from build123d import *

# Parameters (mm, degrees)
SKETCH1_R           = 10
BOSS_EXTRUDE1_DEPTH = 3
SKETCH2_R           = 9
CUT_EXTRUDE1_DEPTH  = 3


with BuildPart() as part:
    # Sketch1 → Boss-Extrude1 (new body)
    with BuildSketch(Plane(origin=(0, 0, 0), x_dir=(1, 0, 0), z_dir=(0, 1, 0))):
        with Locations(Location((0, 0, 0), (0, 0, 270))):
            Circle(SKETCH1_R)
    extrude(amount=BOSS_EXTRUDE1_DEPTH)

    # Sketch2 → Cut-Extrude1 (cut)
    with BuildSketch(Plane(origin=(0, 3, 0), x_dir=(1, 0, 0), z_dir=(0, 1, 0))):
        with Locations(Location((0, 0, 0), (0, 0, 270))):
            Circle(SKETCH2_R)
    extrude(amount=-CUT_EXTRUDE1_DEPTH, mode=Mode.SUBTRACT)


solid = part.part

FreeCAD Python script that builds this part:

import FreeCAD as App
import Part
import Sketcher
from FreeCAD import Vector
Q = App.Units.Quantity

doc = App.newDocument("Part")
body = doc.addObject("PartDesign::Body", "Body")

# Sketch on XZ plane
sketch1 = body.newObject("Sketcher::SketchObject", "Sketch")
sketch1.AttachmentSupport = (doc.getObject("XZ_Plane"), [""])
sketch1.MapMode = "FlatFace"
sketch1.addGeometry(Part.Circle(Vector(0, 0, 0), Vector(0, 0, 1), 10), False)
sketch1.addConstraint(Sketcher.Constraint("Coincident", 0, 3, -1, 1))
sketch1.addConstraint(Sketcher.Constraint("Diameter", 0, Q("20 mm")))
pad1 = body.newObject("PartDesign::Pad", "Pad")
pad1.Profile = sketch1
pad1.Length = 3
pad1.Reversed = True

# Sketch on XZ plane
sketch2 = body.newObject("Sketcher::SketchObject", "Sketch001")
sketch2.AttachmentSupport = (doc.getObject("XZ_Plane"), [""])
sketch2.MapMode = "FlatFace"
sketch2.AttachmentOffset = App.Placement(Vector(0, 0, -3), App.Rotation())
sketch2.addGeometry(Part.Circle(Vector(0, 0, 0), Vector(0, 0, 1), 9), False)
sketch2.addConstraint(Sketcher.Constraint("Coincident", 0, 3, -1, 1))
sketch2.addConstraint(Sketcher.Constraint("Diameter", 0, Q("18 mm")))
pocket1 = body.newObject("PartDesign::Pocket", "Pocket")
pocket1.Profile = sketch2
pocket1.Length = 3
pocket1.Reversed = True

doc.recompute()
